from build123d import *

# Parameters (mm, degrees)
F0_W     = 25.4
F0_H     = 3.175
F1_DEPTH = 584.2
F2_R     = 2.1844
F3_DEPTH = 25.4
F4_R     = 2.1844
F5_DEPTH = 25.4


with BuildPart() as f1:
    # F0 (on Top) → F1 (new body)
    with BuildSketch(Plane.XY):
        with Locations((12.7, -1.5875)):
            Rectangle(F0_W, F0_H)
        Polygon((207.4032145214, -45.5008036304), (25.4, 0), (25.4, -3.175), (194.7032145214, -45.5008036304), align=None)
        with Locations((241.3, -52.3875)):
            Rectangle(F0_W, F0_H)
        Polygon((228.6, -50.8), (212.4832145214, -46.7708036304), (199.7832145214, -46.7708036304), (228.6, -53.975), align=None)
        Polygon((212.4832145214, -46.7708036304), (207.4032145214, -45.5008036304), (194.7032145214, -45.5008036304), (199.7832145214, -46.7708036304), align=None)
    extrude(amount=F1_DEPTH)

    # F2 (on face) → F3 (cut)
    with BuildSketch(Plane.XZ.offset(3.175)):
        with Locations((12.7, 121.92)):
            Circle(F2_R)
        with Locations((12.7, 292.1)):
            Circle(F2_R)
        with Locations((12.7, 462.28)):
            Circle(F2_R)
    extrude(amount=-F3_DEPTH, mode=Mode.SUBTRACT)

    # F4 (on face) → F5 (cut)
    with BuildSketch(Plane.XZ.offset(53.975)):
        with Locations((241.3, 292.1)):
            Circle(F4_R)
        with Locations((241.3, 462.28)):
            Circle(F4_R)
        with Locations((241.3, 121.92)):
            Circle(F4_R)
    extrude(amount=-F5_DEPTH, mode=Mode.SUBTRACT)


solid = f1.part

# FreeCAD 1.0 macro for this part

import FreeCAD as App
import Part
import Sketcher
from FreeCAD import Vector
Q = App.Units.Quantity

doc = App.newDocument("Part")
params = doc.addObject("Spreadsheet::Sheet", "Params")
for row, (alias, value) in enumerate([
    ("sketch1_width", "1 in"),
    ("pad1_length", "23 in"),
    ("sketch2_diameter", "0.172 in"),
    ("pocket1_length", "1 in"),
    ("sketch3_diameter", "0.172 in"),
    ("pocket2_length", "1 in"),
], start=1):
    params.set(f"A{row}", alias)
    params.set(f"B{row}", "=" + value)
    params.setAlias(f"B{row}", alias)

body = doc.addObject("PartDesign::Body", "Body")

sketch1 = doc.addObject("Sketcher::SketchObject", "Sketch")
body.addObject(sketch1)
sketch1.AttachmentSupport = (doc.XY_Plane, [""])
sketch1.MapMode = "FlatFace"
sketch1.addGeometry([
    Part.LineSegment(Vector(0, 0, 0), Vector(0, -3.2, 0)),
    Part.LineSegment(Vector(0, -3.2, 0), Vector(25.4, -3.2, 0)),
    Part.LineSegment(Vector(25.4, -3.2, 0), Vector(199.8, -46.8, 0)),
    Part.LineSegment(Vector(199.8, -46.8, 0), Vector(228.6, -54, 0)),
    Part.LineSegment(Vector(228.6, -54, 0), Vector(254, -54, 0)),
    Part.LineSegment(Vector(254, -54, 0), Vector(254, -50.8, 0)),
    Part.LineSegment(Vector(254, -50.8, 0), Vector(228.6, -50.8, 0)),
    Part.LineSegment(Vector(228.6, -50.8, 0), Vector(212.5, -46.8, 0)),
    Part.LineSegment(Vector(212.5, -46.8, 0), Vector(25.4, 0, 0)),
    Part.LineSegment(Vector(25.4, 0, 0), Vector(0, 0, 0)),
], False)
sketch1.addConstraint([
    Sketcher.Constraint("Coincident", 0, 2, 1, 1),
    Sketcher.Constraint("Coincident", 1, 2, 2, 1),
    Sketcher.Constraint("Coincident", 2, 2, 3, 1),
    Sketcher.Constraint("Coincident", 3, 2, 4, 1),
    Sketcher.Constraint("Coincident", 4, 2, 5, 1),
    Sketcher.Constraint("Coincident", 5, 2, 6, 1),
    Sketcher.Constraint("Coincident", 6, 2, 7, 1),
    Sketcher.Constraint("Coincident", 7, 2, 8, 1),
    Sketcher.Constraint("Coincident", 8, 2, 9, 1),
    Sketcher.Constraint("Coincident", 9, 2, 0, 1),
    Sketcher.Constraint("Vertical", 0),
    Sketcher.Constraint("Horizontal", 1),
    Sketcher.Constraint("Horizontal", 4),
    Sketcher.Constraint("Vertical", 5),
    Sketcher.Constraint("Horizontal", 6),
    Sketcher.Constraint("Horizontal", 9),
    Sketcher.Constraint("Coincident", 9, 2, -1, 1),
    Sketcher.Constraint("Parallel", 2, 3),
    Sketcher.Constraint("Parallel", 3, 7),
    Sketcher.Constraint("Parallel", 7, 8),
    Sketcher.Constraint("Horizontal", 2, 2, 7, 2),
    Sketcher.Constraint("Vertical", 3, 2, 6, 2),
    Sketcher.Constraint("Vertical", 1, 2, 8, 2),
    Sketcher.Constraint("Equal", 1, 4),
    Sketcher.Constraint("DistanceX", 1, 1, 1, 2, Q("1 in")),
    Sketcher.Constraint("DistanceX", -1, 1, 3, 2, Q("9 in")),
    Sketcher.Constraint("DistanceY", 5, 2, -1, 1, Q("2 in")),
    Sketcher.Constraint("DistanceX", 2, 2, 7, 2, Q("0.5 in")),
    Sketcher.Constraint("Distance", 2, Q("179.750103 mm")),
])
sketch1.setExpression("Constraints[24]", "Params.sketch1_width")
pad1 = doc.addObject("PartDesign::Pad", "Pad")
body.addObject(pad1)
pad1.Profile = sketch1
pad1.setExpression("Length", "Params.pad1_length")

sketch2 = doc.addObject("Sketcher::SketchObject", "Sketch001")
body.addObject(sketch2)
sketch2.AttachmentSupport = (doc.XZ_Plane, [""])
sketch2.MapMode = "FlatFace"
sketch2.AttachmentOffset = App.Placement(Vector(0, 0, 0.125 * 25.4), App.Rotation())
sketch2.addGeometry([
    Part.Circle(Vector(12.7, 121.9, 0), Vector(0, 0, 1), 2.2),
    Part.Circle(Vector(12.7, 292.1, 0), Vector(0, 0, 1), 2.2),
    Part.Circle(Vector(12.7, 462.3, 0), Vector(0, 0, 1), 2.2),
], False)
sketch2.addConstraint([
    Sketcher.Constraint("Equal", 0, 1),
    Sketcher.Constraint("Equal", 1, 2),
    Sketcher.Constraint("Vertical", 0, 3, 1, 3),
    Sketcher.Constraint("Vertical", 1, 3, 2, 3),
    Sketcher.Constraint("Diameter", 0, Q("0.172 in")),
    Sketcher.Constraint("DistanceX", -1, 1, 0, 3, Q("0.5 in")),
    Sketcher.Constraint("DistanceY", -1, 1, 0, 3, Q("4.8 in")),
    Sketcher.Constraint("DistanceY", -1, 1, 1, 3, Q("11.5 in")),
    Sketcher.Constraint("DistanceY", -1, 1, 2, 3, Q("18.2 in")),
])
sketch2.setExpression("Constraints[4]", "Params.sketch2_diameter")
pocket1 = doc.addObject("PartDesign::Pocket", "Pocket")
body.addObject(pocket1)
pocket1.Profile = sketch2
pocket1.setExpression("Length", "Params.pocket1_length")

sketch3 = doc.addObject("Sketcher::SketchObject", "Sketch002")
body.addObject(sketch3)
sketch3.AttachmentSupport = (doc.XZ_Plane, [""])
sketch3.MapMode = "FlatFace"
sketch3.AttachmentOffset = App.Placement(Vector(0, 0, 2.125 * 25.4), App.Rotation())
sketch3.addGeometry([
    Part.Circle(Vector(241.3, 292.1, 0), Vector(0, 0, 1), 2.2),
    Part.Circle(Vector(241.3, 462.3, 0), Vector(0, 0, 1), 2.2),
    Part.Circle(Vector(241.3, 121.9, 0), Vector(0, 0, 1), 2.2),
], False)
sketch3.addConstraint([
    Sketcher.Constraint("Equal", 0, 1),
    Sketcher.Constraint("Equal", 1, 2),
    Sketcher.Constraint("Vertical", 0, 3, 1, 3),
    Sketcher.Constraint("Vertical", 1, 3, 2, 3),
    Sketcher.Constraint("Diameter", 0, Q("0.172 in")),
    Sketcher.Constraint("DistanceX", -1, 1, 0, 3, Q("9.5 in")),
    Sketcher.Constraint("DistanceY", -1, 1, 0, 3, Q("11.5 in")),
    Sketcher.Constraint("DistanceY", -1, 1, 1, 3, Q("18.2 in")),
    Sketcher.Constraint("DistanceY", -1, 1, 2, 3, Q("4.8 in")),
])
sketch3.setExpression("Constraints[4]", "Params.sketch3_diameter")
pocket2 = doc.addObject("PartDesign::Pocket", "Pocket001")
body.addObject(pocket2)
pocket2.Profile = sketch3
pocket2.setExpression("Length", "Params.pocket2_length")

doc.recompute()
